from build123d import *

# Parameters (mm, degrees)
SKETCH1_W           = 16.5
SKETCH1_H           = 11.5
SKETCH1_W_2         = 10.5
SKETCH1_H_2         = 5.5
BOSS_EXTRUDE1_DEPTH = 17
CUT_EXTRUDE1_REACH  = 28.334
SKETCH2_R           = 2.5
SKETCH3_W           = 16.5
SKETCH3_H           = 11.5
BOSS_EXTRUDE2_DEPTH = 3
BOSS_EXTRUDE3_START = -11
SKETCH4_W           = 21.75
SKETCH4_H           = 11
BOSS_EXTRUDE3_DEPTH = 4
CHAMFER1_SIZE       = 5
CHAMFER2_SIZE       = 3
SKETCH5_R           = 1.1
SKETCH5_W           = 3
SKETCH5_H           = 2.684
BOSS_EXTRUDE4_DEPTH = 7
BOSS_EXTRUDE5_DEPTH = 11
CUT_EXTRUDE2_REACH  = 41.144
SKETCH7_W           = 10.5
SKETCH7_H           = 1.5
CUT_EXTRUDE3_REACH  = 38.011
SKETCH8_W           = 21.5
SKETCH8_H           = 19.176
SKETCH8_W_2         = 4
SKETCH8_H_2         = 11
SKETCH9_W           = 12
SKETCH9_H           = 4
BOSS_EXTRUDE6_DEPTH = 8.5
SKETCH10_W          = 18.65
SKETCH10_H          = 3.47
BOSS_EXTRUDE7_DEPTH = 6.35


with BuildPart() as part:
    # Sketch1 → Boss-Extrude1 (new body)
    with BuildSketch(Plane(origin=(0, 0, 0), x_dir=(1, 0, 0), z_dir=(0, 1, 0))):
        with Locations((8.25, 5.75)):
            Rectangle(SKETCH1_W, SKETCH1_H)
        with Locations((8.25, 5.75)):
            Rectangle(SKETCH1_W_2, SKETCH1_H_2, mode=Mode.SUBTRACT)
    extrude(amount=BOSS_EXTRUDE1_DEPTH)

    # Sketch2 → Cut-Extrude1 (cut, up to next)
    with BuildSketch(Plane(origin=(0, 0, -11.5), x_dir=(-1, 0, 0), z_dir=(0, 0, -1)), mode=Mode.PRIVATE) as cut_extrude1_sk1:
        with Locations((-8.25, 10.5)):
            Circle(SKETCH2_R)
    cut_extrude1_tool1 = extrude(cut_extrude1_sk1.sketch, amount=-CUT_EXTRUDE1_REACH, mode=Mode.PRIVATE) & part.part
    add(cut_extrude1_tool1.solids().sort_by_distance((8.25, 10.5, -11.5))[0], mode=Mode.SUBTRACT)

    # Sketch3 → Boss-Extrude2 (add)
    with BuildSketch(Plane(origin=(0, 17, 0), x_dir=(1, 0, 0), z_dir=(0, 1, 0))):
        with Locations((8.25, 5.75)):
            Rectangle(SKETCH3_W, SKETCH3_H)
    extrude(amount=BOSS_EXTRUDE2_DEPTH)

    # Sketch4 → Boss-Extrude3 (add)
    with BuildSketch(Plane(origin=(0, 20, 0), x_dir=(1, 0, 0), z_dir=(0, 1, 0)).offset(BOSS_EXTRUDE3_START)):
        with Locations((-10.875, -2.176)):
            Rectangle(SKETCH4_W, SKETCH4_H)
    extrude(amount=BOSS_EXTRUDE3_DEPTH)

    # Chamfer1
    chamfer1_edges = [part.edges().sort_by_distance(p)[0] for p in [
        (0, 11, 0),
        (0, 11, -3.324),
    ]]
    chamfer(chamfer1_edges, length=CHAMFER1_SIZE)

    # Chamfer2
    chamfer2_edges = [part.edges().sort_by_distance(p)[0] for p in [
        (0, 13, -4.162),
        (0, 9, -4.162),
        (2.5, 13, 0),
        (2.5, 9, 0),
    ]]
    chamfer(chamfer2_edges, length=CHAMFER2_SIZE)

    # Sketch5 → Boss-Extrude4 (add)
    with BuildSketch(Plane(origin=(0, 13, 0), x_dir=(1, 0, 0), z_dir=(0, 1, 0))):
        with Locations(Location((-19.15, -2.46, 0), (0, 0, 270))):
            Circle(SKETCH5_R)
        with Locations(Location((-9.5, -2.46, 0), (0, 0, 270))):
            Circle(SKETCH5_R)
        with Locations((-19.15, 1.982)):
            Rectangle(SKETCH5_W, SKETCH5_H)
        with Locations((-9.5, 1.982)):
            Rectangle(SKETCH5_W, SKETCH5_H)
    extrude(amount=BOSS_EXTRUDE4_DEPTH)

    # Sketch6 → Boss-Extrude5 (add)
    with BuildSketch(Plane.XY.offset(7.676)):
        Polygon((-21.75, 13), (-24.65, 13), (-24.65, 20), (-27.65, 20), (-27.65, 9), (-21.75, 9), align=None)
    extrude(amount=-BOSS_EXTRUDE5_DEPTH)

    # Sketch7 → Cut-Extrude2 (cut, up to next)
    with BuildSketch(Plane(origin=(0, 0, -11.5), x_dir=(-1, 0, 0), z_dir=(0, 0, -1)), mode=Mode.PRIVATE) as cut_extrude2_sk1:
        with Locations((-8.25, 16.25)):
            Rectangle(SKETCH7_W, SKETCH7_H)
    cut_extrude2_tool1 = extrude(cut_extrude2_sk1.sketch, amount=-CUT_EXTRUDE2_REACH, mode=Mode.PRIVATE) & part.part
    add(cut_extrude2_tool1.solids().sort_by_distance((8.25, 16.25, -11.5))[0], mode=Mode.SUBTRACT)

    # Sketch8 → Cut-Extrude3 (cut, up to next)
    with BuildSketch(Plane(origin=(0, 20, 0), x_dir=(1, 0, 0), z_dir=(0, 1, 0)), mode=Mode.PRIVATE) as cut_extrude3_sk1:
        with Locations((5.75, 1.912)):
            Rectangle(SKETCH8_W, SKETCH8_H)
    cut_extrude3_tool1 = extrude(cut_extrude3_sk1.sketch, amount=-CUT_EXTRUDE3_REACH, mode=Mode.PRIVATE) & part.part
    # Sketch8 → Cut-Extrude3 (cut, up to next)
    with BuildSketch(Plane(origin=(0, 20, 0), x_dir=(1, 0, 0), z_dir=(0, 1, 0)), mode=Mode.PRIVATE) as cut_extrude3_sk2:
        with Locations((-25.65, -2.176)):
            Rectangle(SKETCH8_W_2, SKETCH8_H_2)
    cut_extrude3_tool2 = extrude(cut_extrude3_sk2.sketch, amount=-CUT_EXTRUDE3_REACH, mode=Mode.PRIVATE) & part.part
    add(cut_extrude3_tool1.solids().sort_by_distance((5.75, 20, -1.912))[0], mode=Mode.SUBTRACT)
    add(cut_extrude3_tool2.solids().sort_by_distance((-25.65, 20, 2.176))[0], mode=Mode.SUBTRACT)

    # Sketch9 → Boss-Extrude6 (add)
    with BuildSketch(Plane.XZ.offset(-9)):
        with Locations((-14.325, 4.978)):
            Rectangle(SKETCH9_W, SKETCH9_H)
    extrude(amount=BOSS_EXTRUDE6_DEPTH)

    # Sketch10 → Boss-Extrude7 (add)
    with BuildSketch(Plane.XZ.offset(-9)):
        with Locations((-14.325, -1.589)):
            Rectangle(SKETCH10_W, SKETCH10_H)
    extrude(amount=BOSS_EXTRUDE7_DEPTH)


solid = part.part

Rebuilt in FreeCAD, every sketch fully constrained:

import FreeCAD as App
import Part
import Sketcher

V = App.Vector


def edges_at(feature, points):
    """Names of the edges that pass closest to the given points."""
    edges = feature.Shape.Edges
    near = lambda p: min(range(len(edges)), key=lambda i: edges[i].distToShape(Part.Vertex(*p))[0])
    return sorted({f"Edge{near(p) + 1}" for p in points})

doc = App.newDocument("Part")
body = doc.addObject("PartDesign::Body", "Body")

sketch1 = doc.addObject("Sketcher::SketchObject", "Sketch")
body.addObject(sketch1)
sketch1.AttachmentSupport = (doc.XZ_Plane, [""])
sketch1.MapMode = "FlatFace"
sketch1.addGeometry(Part.LineSegment(V(0, -12, 0), V(0, 0, 0)), False)
sketch1.addGeometry(Part.LineSegment(V(0, 0, 0), V(16, 0, 0)), False)
sketch1.addGeometry(Part.LineSegment(V(16, 0, 0), V(16, -12, 0)), False)
sketch1.addGeometry(Part.LineSegment(V(16, -12, 0), V(0, -12, 0)), False)
sketch1.addGeometry(Part.LineSegment(V(14, -3, 0), V(3, -3, 0)), False)
sketch1.addGeometry(Part.LineSegment(V(3, -3, 0), V(3, -8, 0)), False)
sketch1.addGeometry(Part.LineSegment(V(3, -8, 0), V(14, -8, 0)), False)
sketch1.addGeometry(Part.LineSegment(V(14, -8, 0), V(14, -3, 0)), False)
sketch1.addConstraint(Sketcher.Constraint("Coincident", 0, 2, 1, 1))
sketch1.addConstraint(Sketcher.Constraint("Coincident", 1, 2, 2, 1))
sketch1.addConstraint(Sketcher.Constraint("Coincident", 2, 2, 3, 1))
sketch1.addConstraint(Sketcher.Constraint("Coincident", 3, 2, 0, 1))
sketch1.addConstraint(Sketcher.Constraint("Coincident", 4, 2, 5, 1))
sketch1.addConstraint(Sketcher.Constraint("Coincident", 5, 2, 6, 1))
sketch1.addConstraint(Sketcher.Constraint("Coincident", 6, 2, 7, 1))
sketch1.addConstraint(Sketcher.Constraint("Coincident", 7, 2, 4, 1))
sketch1.addConstraint(Sketcher.Constraint("Vertical", 0))
sketch1.addConstraint(Sketcher.Constraint("Horizontal", 1))
sketch1.addConstraint(Sketcher.Constraint("Vertical", 2))
sketch1.addConstraint(Sketcher.Constraint("Horizontal", 3))
sketch1.addConstraint(Sketcher.Constraint("Horizontal", 4))
sketch1.addConstraint(Sketcher.Constraint("Vertical", 5))
sketch1.addConstraint(Sketcher.Constraint("Horizontal", 6))
sketch1.addConstraint(Sketcher.Constraint("Vertical", 7))
sketch1.addConstraint(Sketcher.Constraint("Coincident", 0, 2, -1, 1))
sketch1.addConstraint(Sketcher.Constraint("DistanceX", 1, 1, 1, 2, 16.5))
sketch1.addConstraint(Sketcher.Constraint("DistanceX", 4, 2, 4, 1, 10.5))
sketch1.addConstraint(Sketcher.Constraint("DistanceY", 0, 1, 0, 2, 11.5))
sketch1.addConstraint(Sketcher.Constraint("DistanceY", 5, 2, 5, 1, 5.5))
sketch1.addConstraint(Sketcher.Constraint("DistanceX", -1, 1, 4, 2, 3.0))
sketch1.addConstraint(Sketcher.Constraint("DistanceY", 4, 2, -1, 1, 3.0))
pad1 = doc.addObject("PartDesign::Pad", "Pad")
body.addObject(pad1)
pad1.Profile = sketch1
pad1.Length = 17
pad1.Reversed = True

sketch2 = doc.addObject("Sketcher::SketchObject", "Sketch001")
body.addObject(sketch2)
sketch2.AttachmentSupport = (doc.XY_Plane, [""])
sketch2.MapMode = "FlatFace"
sketch2.AttachmentOffset = App.Placement(V(0, 0, -11.5), App.Rotation())
sketch2.addGeometry(Part.Circle(V(8.2, 10.5, 0), V(0, 0, 1), 2.5), False)
sketch2.addConstraint(Sketcher.Constraint("Diameter", 0, 5.0))
sketch2.addConstraint(Sketcher.Constraint("DistanceY", -1, 1, 0, 3, 10.5))
sketch2.addConstraint(Sketcher.Constraint("DistanceX", -1, 1, 0, 3, 8.25))
pocket1 = doc.addObject("PartDesign::Pocket", "Pocket")
body.addObject(pocket1)
pocket1.Profile = sketch2
pocket1.Type = "UpToFirst"
pocket1.Reversed = True

sketch3 = doc.addObject("Sketcher::SketchObject", "Sketch002")
body.addObject(sketch3)
sketch3.AttachmentSupport = (doc.XZ_Plane, [""])
sketch3.MapMode = "FlatFace"
sketch3.AttachmentOffset = App.Placement(V(0, 0, -17), App.Rotation())
sketch3.addGeometry(Part.LineSegment(V(0, -12, 0), V(0, 0, 0)), False)
sketch3.addGeometry(Part.LineSegment(V(0, 0, 0), V(16, 0, 0)), False)
sketch3.addGeometry(Part.LineSegment(V(16, 0, 0), V(16, -12, 0)), False)
sketch3.addGeometry(Part.LineSegment(V(16, -12, 0), V(0, -12, 0)), False)
sketch3.addConstraint(Sketcher.Constraint("Coincident", 0, 2, 1, 1))
sketch3.addConstraint(Sketcher.Constraint("Coincident", 1, 2, 2, 1))
sketch3.addConstraint(Sketcher.Constraint("Coincident", 2, 2, 3, 1))
sketch3.addConstraint(Sketcher.Constraint("Coincident", 3, 2, 0, 1))
sketch3.addConstraint(Sketcher.Constraint("Vertical", 0))
sketch3.addConstraint(Sketcher.Constraint("Horizontal", 1))
sketch3.addConstraint(Sketcher.Constraint("Vertical", 2))
sketch3.addConstraint(Sketcher.Constraint("Horizontal", 3))
sketch3.addConstraint(Sketcher.Constraint("Coincident", 0, 2, -1, 1))
sketch3.addConstraint(Sketcher.Constraint("DistanceX", 1, 1, 1, 2, 16.5))
sketch3.addConstraint(Sketcher.Constraint("DistanceY", 0, 1, 0, 2, 11.5))
pad2 = doc.addObject("PartDesign::Pad", "Pad001")
body.addObject(pad2)
pad2.Profile = sketch3
pad2.Length = 3
pad2.Reversed = True

sketch4 = doc.addObject("Sketcher::SketchObject", "Sketch003")
body.addObject(sketch4)
sketch4.AttachmentSupport = (doc.XZ_Plane, [""])
sketch4.MapMode = "FlatFace"
sketch4.AttachmentOffset = App.Placement(V(0, 0, -9), App.Rotation())
sketch4.addGeometry(Part.LineSegment(V(-22, -3, 0), V(-22, 8, 0)), False)
sketch4.addGeometry(Part.LineSegment(V(-22, 8, 0), V(0, 8, 0)), False)
sketch4.addGeometry(Part.LineSegment(V(0, 8, 0), V(0, -3, 0)), False)
sketch4.addGeometry(Part.LineSegment(V(0, -3, 0), V(-22, -3, 0)), False)
sketch4.addConstraint(Sketcher.Constraint("Coincident", 0, 2, 1, 1))
sketch4.addConstraint(Sketcher.Constraint("Coincident", 1, 2, 2, 1))
sketch4.addConstraint(Sketcher.Constraint("Coincident", 2, 2, 3, 1))
sketch4.addConstraint(Sketcher.Constraint("Coincident", 3, 2, 0, 1))
sketch4.addConstraint(Sketcher.Constraint("Vertical", 0))
sketch4.addConstraint(Sketcher.Constraint("Horizontal", 1))
sketch4.addConstraint(Sketcher.Constraint("Vertical", 2))
sketch4.addConstraint(Sketcher.Constraint("Horizontal", 3))
sketch4.addConstraint(Sketcher.Constraint("PointOnObject", 1, 2, -2))
sketch4.addConstraint(Sketcher.Constraint("DistanceY", 0, 1, 0, 2, 11.0))
sketch4.addConstraint(Sketcher.Constraint("DistanceX", 1, 1, 1, 2, 21.75))
sketch4.addConstraint(Sketcher.Constraint("DistanceY", -1, 1, 0, 2, 7.676))
pad3 = doc.addObject("PartDesign::Pad", "Pad002")
body.addObject(pad3)
pad3.Profile = sketch4
pad3.Length = 4
pad3.Reversed = True
doc.recompute()

chamfer = doc.addObject("PartDesign::Chamfer", "Chamfer")
body.addObject(chamfer)
chamfer.Base = (pad3, edges_at(pad3, [(0, 11, 0), (0, 11, -3.324)]))
chamfer.Size = 5
doc.recompute()

chamfer2 = doc.addObject("PartDesign::Chamfer", "Chamfer001")
body.addObject(chamfer2)
chamfer2.Base = (chamfer, edges_at(chamfer, [
    (0, 13, -4.162),
    (0, 9, -4.162),
    (2.5, 13, 0),
    (2.5, 9, 0),
]))
chamfer2.Size = 3

sketch5 = doc.addObject("Sketcher::SketchObject", "Sketch004")
body.addObject(sketch5)
sketch5.AttachmentSupport = (doc.XZ_Plane, [""])
sketch5.MapMode = "FlatFace"
sketch5.AttachmentOffset = App.Placement(V(0, 0, -13), App.Rotation())
sketch5.addGeometry(Part.Circle(V(-19.1, 2.5, 0), V(0, 0, 1), 1.1), False)
sketch5.addGeometry(Part.Circle(V(-9.5, 2.5, 0), V(0, 0, 1), 1.1), False)
sketch5.addGeometry(Part.LineSegment(V(-20.6, -3.3, 0), V(-20.6, -0.6, 0)), False)
sketch5.addGeometry(Part.LineSegment(V(-20.6, -0.6, 0), V(-17.6, -0.6, 0)), False)
sketch5.addGeometry(Part.LineSegment(V(-17.6, -0.6, 0), V(-17.6, -3.3, 0)), False)
sketch5.addGeometry(Part.LineSegment(V(-17.6, -3.3, 0), V(-20.6, -3.3, 0)), False)
sketch5.addGeometry(Part.LineSegment(V(-11, -3.3, 0), V(-11, -0.6, 0)), False)
sketch5.addGeometry(Part.LineSegment(V(-11, -0.6, 0), V(-8, -0.6, 0)), False)
sketch5.addGeometry(Part.LineSegment(V(-8, -0.6, 0), V(-8, -3.3, 0)), False)
sketch5.addGeometry(Part.LineSegment(V(-8, -3.3, 0), V(-11, -3.3, 0)), False)
sketch5.addConstraint(Sketcher.Constraint("Coincident", 2, 2, 3, 1))
sketch5.addConstraint(Sketcher.Constraint("Coincident", 3, 2, 4, 1))
sketch5.addConstraint(Sketcher.Constraint("Coincident", 4, 2, 5, 1))
sketch5.addConstraint(Sketcher.Constraint("Coincident", 5, 2, 2, 1))
sketch5.addConstraint(Sketcher.Constraint("Coincident", 6, 2, 7, 1))
sketch5.addConstraint(Sketcher.Constraint("Coincident", 7, 2, 8, 1))
sketch5.addConstraint(Sketcher.Constraint("Coincident", 8, 2, 9, 1))
sketch5.addConstraint(Sketcher.Constraint("Coincident", 9, 2, 6, 1))
sketch5.addConstraint(Sketcher.Constraint("Vertical", 2))
sketch5.addConstraint(Sketcher.Constraint("Horizontal", 3))
sketch5.addConstraint(Sketcher.Constraint("Vertical", 4))
sketch5.addConstraint(Sketcher.Constraint("Horizontal", 5))
sketch5.addConstraint(Sketcher.Constraint("Vertical", 6))
sketch5.addConstraint(Sketcher.Constraint("Horizontal", 7))
sketch5.addConstraint(Sketcher.Constraint("Vertical", 8))
sketch5.addConstraint(Sketcher.Constraint("Horizontal", 9))
sketch5.addConstraint(Sketcher.Constraint("Equal", 0, 1))
sketch5.addConstraint(Sketcher.Constraint("Horizontal", 0, 3, 1, 3))
sketch5.addConstraint(Sketcher.Constraint("Horizontal", 3, 2, 6, 2))
sketch5.addConstraint(Sketcher.Constraint("Horizontal", 5, 2, 8, 2))
sketch5.addConstraint(Sketcher.Constraint("Equal", 5, 7))
sketch5.addConstraint(Sketcher.Constraint("Diameter", 0, 2.2))
sketch5.addConstraint(Sketcher.Constraint("DistanceX", 3, 1, 3, 2, 3.0))
sketch5.addConstraint(Sketcher.Constraint("DistanceX", 6, 2, -1, 1, 11.0))
sketch5.addConstraint(Sketcher.Constraint("DistanceX", 1, 3, -1, 1, 9.5))
sketch5.addConstraint(Sketcher.Constraint("DistanceX", 2, 2, 0, 3, 1.5))
sketch5.addConstraint(Sketcher.Constraint("DistanceY", 2, 2, 0, 3, 3.1))
sketch5.addConstraint(Sketcher.Constraint("DistanceY", 2, 1, 2, 2, 2.684))
sketch5.addConstraint(Sketcher.Constraint("DistanceX", 0, 3, -1, 1, 19.15))
sketch5.addConstraint(Sketcher.Constraint("DistanceY", -1, 1, 0, 3, 2.46))
pad4 = doc.addObject("PartDesign::Pad", "Pad003")
body.addObject(pad4)
pad4.Profile = sketch5
pad4.Length = 7
pad4.Reversed = True

sketch6 = doc.addObject("Sketcher::SketchObject", "Sketch005")
body.addObject(sketch6)
sketch6.AttachmentSupport = (doc.XY_Plane, [""])
sketch6.MapMode = "FlatFace"
sketch6.AttachmentOffset = App.Placement(V(0, 0, 7.676), App.Rotation())
sketch6.addGeometry(Part.LineSegment(V(-21.8, 13, 0), V(-24.6, 13, 0)), False)
sketch6.addGeometry(Part.LineSegment(V(-24.6, 13, 0), V(-24.6, 20, 0)), False)
sketch6.addGeometry(Part.LineSegment(V(-24.6, 20, 0), V(-27.6, 20, 0)), False)
sketch6.addGeometry(Part.LineSegment(V(-27.6, 20, 0), V(-27.6, 9, 0)), False)
sketch6.addGeometry(Part.LineSegment(V(-27.6, 9, 0), V(-21.8, 9, 0)), False)
sketch6.addGeometry(Part.LineSegment(V(-21.8, 9, 0), V(-21.8, 13, 0)), False)
sketch6.addConstraint(Sketcher.Constraint("Coincident", 0, 2, 1, 1))
sketch6.addConstraint(Sketcher.Constraint("Coincident", 1, 2, 2, 1))
sketch6.addConstraint(Sketcher.Constraint("Coincident", 2, 2, 3, 1))
sketch6.addConstraint(Sketcher.Constraint("Coincident", 3, 2, 4, 1))
sketch6.addConstraint(Sketcher.Constraint("Coincident", 4, 2, 5, 1))
sketch6.addConstraint(Sketcher.Constraint("Coincident", 5, 2, 0, 1))
sketch6.addConstraint(Sketcher.Constraint("Horizontal", 0))
sketch6.addConstraint(Sketcher.Constraint("Vertical", 1))
sketch6.addConstraint(Sketcher.Constraint("Horizontal", 2))
sketch6.addConstraint(Sketcher.Constraint("Vertical", 3))
sketch6.addConstraint(Sketcher.Constraint("Horizontal", 4))
sketch6.addConstraint(Sketcher.Constraint("Vertical", 5))
sketch6.addConstraint(Sketcher.Constraint("DistanceX", 2, 2, 2, 1, 3.0))
sketch6.addConstraint(Sketcher.Constraint("DistanceY", 1, 1, 1, 2, 7.0))
sketch6.addConstraint(Sketcher.Constraint("DistanceY", 3, 2, 3, 1, 11.0))
sketch6.addConstraint(Sketcher.Constraint("DistanceX", 0, 2, 0, 1, 2.9))
sketch6.addConstraint(Sketcher.Constraint("DistanceY", -1, 1, 0, 2, 13.0))
sketch6.addConstraint(Sketcher.Constraint("DistanceX", 0, 2, -1, 1, 24.65))
pad5 = doc.addObject("PartDesign::Pad", "Pad004")
body.addObject(pad5)
pad5.Profile = sketch6
pad5.Length = 11
pad5.Reversed = True

sketch7 = doc.addObject("Sketcher::SketchObject", "Sketch006")
body.addObject(sketch7)
sketch7.AttachmentSupport = (doc.XY_Plane, [""])
sketch7.MapMode = "FlatFace"
sketch7.AttachmentOffset = App.Placement(V(0, 0, -11.5), App.Rotation())
sketch7.addGeometry(Part.LineSegment(V(13.5, 17, 0), V(13.5, 15.5, 0)), False)
sketch7.addGeometry(Part.LineSegment(V(13.5, 15.5, 0), V(3, 15.5, 0)), False)
sketch7.addGeometry(Part.LineSegment(V(3, 15.5, 0), V(3, 17, 0)), False)
sketch7.addGeometry(Part.LineSegment(V(3, 17, 0), V(13.5, 17, 0)), False)
sketch7.addConstraint(Sketcher.Constraint("Coincident", 0, 2, 1, 1))
sketch7.addConstraint(Sketcher.Constraint("Coincident", 1, 2, 2, 1))
sketch7.addConstraint(Sketcher.Constraint("Coincident", 2, 2, 3, 1))
sketch7.addConstraint(Sketcher.Constraint("Coincident", 3, 2, 0, 1))
sketch7.addConstraint(Sketcher.Constraint("Vertical", 0))
sketch7.addConstraint(Sketcher.Constraint("Horizontal", 1))
sketch7.addConstraint(Sketcher.Constraint("Vertical", 2))
sketch7.addConstraint(Sketcher.Constraint("Horizontal", 3))
sketch7.addConstraint(Sketcher.Constraint("DistanceX", 1, 2, 1, 1, 10.5))
sketch7.addConstraint(Sketcher.Constraint("DistanceY", 0, 2, 0, 1, 1.5))
sketch7.addConstraint(Sketcher.Constraint("DistanceX", -1, 1, 1, 2, 3.0))
sketch7.addConstraint(Sketcher.Constraint("DistanceY", -1, 1, 2, 2, 17.0))
pocket2 = doc.addObject("PartDesign::Pocket", "Pocket001")
body.addObject(pocket2)
pocket2.Profile = sketch7
pocket2.Type = "UpToFirst"
pocket2.Reversed = True

sketch8 = doc.addObject("Sketcher::SketchObject", "Sketch007")
body.addObject(sketch8)
sketch8.AttachmentSupport = (doc.XZ_Plane, [""])
sketch8.MapMode = "FlatFace"
sketch8.AttachmentOffset = App.Placement(V(0, 0, -20), App.Rotation())
sketch8.addGeometry(Part.LineSegment(V(-5, -12, 0), V(-5, 8, 0)), False)
sketch8.addGeometry(Part.LineSegment(V(-5, 8, 0), V(16, 8, 0)), False)
sketch8.addGeometry(Part.LineSegment(V(16, 8, 0), V(16, -12, 0)), False)
sketch8.addGeometry(Part.LineSegment(V(16, -12, 0), V(-5, -12, 0)), False)
sketch8.addConstraint(Sketcher.Constraint("Coincident", 0, 2, 1, 1))
sketch8.addConstraint(Sketcher.Constraint("Coincident", 1, 2, 2, 1))
sketch8.addConstraint(Sketcher.Constraint("Coincident", 2, 2, 3, 1))
sketch8.addConstraint(Sketcher.Constraint("Coincident", 3, 2, 0, 1))
sketch8.addConstraint(Sketcher.Constraint("Vertical", 0))
sketch8.addConstraint(Sketcher.Constraint("Horizontal", 1))
sketch8.addConstraint(Sketcher.Constraint("Vertical", 2))
sketch8.addConstraint(Sketcher.Constraint("Horizontal", 3))
sketch8.addConstraint(Sketcher.Constraint("DistanceX", 1, 1, 1, 2, 21.5))
sketch8.addConstraint(Sketcher.Constraint("DistanceX", 0, 2, -1, 1, 5.0))
sketch8.addConstraint(Sketcher.Constraint("DistanceY", 2, 2, -1, 1, 11.5))
sketch8.addConstraint(Sketcher.Constraint("DistanceY", 0, 1, 0, 2, 19.176))
pocket3 = doc.addObject("PartDesign::Pocket", "Pocket002")
body.addObject(pocket3)
pocket3.Profile = sketch8
pocket3.Type = "UpToFirst"
pocket3.Reversed = True

sketch9 = doc.addObject("Sketcher::SketchObject", "Sketch008")
body.addObject(sketch9)
sketch9.AttachmentSupport = (doc.XZ_Plane, [""])
sketch9.MapMode = "FlatFace"
sketch9.AttachmentOffset = App.Placement(V(0, 0, -20), App.Rotation())
sketch9.addGeometry(Part.LineSegment(V(-27.6, -3.3, 0), V(-27.6, 7.7, 0)), False)
sketch9.addGeometry(Part.LineSegment(V(-27.6, 7.7, 0), V(-23.6, 7.7, 0)), False)
sketch9.addGeometry(Part.LineSegment(V(-23.6, 7.7, 0), V(-23.6, -3.3, 0)), False)
sketch9.addGeometry(Part.LineSegment(V(-23.6, -3.3, 0), V(-27.6, -3.3, 0)), False)
sketch9.addConstraint(Sketcher.Constraint("Coincident", 0, 2, 1, 1))
sketch9.addConstraint(Sketcher.Constraint("Coincident", 1, 2, 2, 1))
sketch9.addConstraint(Sketcher.Constraint("Coincident", 2, 2, 3, 1))
sketch9.addConstraint(Sketcher.Constraint("Coincident", 3, 2, 0, 1))
sketch9.addConstraint(Sketcher.Constraint("Vertical", 0))
sketch9.addConstraint(Sketcher.Constraint("Horizontal", 1))
sketch9.addConstraint(Sketcher.Constraint("Vertical", 2))
sketch9.addConstraint(Sketcher.Constraint("Horizontal", 3))
sketch9.addConstraint(Sketcher.Constraint("DistanceX", 1, 1, 1, 2, 4.0))
sketch9.addConstraint(Sketcher.Constraint("DistanceY", 0, 1, 0, 2, 11.0))
sketch9.addConstraint(Sketcher.Constraint("DistanceX", 0, 2, -1, 1, 27.65))
sketch9.addConstraint(Sketcher.Constraint("DistanceY", -1, 1, 0, 2, 7.676))
pocket4 = doc.addObject("PartDesign::Pocket", "Pocket003")
body.addObject(pocket4)
pocket4.Profile = sketch9
pocket4.Type = "UpToFirst"
pocket4.Reversed = True

sketch10 = doc.addObject("Sketcher::SketchObject", "Sketch009")
body.addObject(sketch10)
sketch10.AttachmentSupport = (doc.XZ_Plane, [""])
sketch10.MapMode = "FlatFace"
sketch10.AttachmentOffset = App.Placement(V(0, 0, -9), App.Rotation())
sketch10.addGeometry(Part.LineSegment(V(-20.3, 7, 0), V(-20.3, 3, 0)), False)
sketch10.addGeometry(Part.LineSegment(V(-20.3, 3, 0), V(-8.3, 3, 0)), False)
sketch10.addGeometry(Part.LineSegment(V(-8.3, 3, 0), V(-8.3, 7, 0)), False)
sketch10.addGeometry(Part.LineSegment(V(-8.3, 7, 0), V(-20.3, 7, 0)), False)
sketch10.addConstraint(Sketcher.Constraint("Coincident", 0, 2, 1, 1))
sketch10.addConstraint(Sketcher.Constraint("Coincident", 1, 2, 2, 1))
sketch10.addConstraint(Sketcher.Constraint("Coincident", 2, 2, 3, 1))
sketch10.addConstraint(Sketcher.Constraint("Coincident", 3, 2, 0, 1))
sketch10.addConstraint(Sketcher.Constraint("Vertical", 0))
sketch10.addConstraint(Sketcher.Constraint("Horizontal", 1))
sketch10.addConstraint(Sketcher.Constraint("Vertical", 2))
sketch10.addConstraint(Sketcher.Constraint("Horizontal", 3))
sketch10.addConstraint(Sketcher.Constraint("DistanceX", 1, 1, 1, 2, 12.0))
sketch10.addConstraint(Sketcher.Constraint("DistanceY", 0, 2, 0, 1, 4.0))
sketch10.addConstraint(Sketcher.Constraint("DistanceX", 0, 2, -1, 1, 20.325))
sketch10.addConstraint(Sketcher.Constraint("DistanceY", -1, 1, 0, 2, 2.978))
pad6 = doc.addObject("PartDesign::Pad", "Pad005")
body.addObject(pad6)
pad6.Profile = sketch10
pad6.Length = 8.5

sketch11 = doc.addObject("Sketcher::SketchObject", "Sketch010")
body.addObject(sketch11)
sketch11.AttachmentSupport = (doc.XZ_Plane, [""])
sketch11.MapMode = "FlatFace"
sketch11.AttachmentOffset = App.Placement(V(0, 0, -9), App.Rotation())
sketch11.addGeometry(Part.LineSegment(V(-23.6, 0.1, 0), V(-23.6, -3.3, 0)), False)
sketch11.addGeometry(Part.LineSegment(V(-23.6, -3.3, 0), V(-5, -3.3, 0)), False)
sketch11.addGeometry(Part.LineSegment(V(-5, -3.3, 0), V(-5, 0.1, 0)), False)
sketch11.addGeometry(Part.LineSegment(V(-5, 0.1, 0), V(-23.6, 0.1, 0)), False)
sketch11.addConstraint(Sketcher.Constraint("Coincident", 0, 2, 1, 1))
sketch11.addConstraint(Sketcher.Constraint("Coincident", 1, 2, 2, 1))
sketch11.addConstraint(Sketcher.Constraint("Coincident", 2, 2, 3, 1))
sketch11.addConstraint(Sketcher.Constraint("Coincident", 3, 2, 0, 1))
sketch11.addConstraint(Sketcher.Constraint("Vertical", 0))
sketch11.addConstraint(Sketcher.Constraint("Horizontal", 1))
sketch11.addConstraint(Sketcher.Constraint("Vertical", 2))
sketch11.addConstraint(Sketcher.Constraint("Horizontal", 3))
sketch11.addConstraint(Sketcher.Constraint("DistanceX", 1, 2, -1, 1, 5.0))
sketch11.addConstraint(Sketcher.Constraint("DistanceX", 1, 1, 1, 2, 18.65))
sketch11.addConstraint(Sketcher.Constraint("DistanceY", 0, 2, 0, 1, 3.47))
sketch11.addConstraint(Sketcher.Constraint("DistanceY", 0, 2, -1, 1, 3.324))
pad7 = doc.addObject("PartDesign::Pad", "Pad006")
body.addObject(pad7)
pad7.Profile = sketch11
pad7.Length = 6.35

doc.recompute()
